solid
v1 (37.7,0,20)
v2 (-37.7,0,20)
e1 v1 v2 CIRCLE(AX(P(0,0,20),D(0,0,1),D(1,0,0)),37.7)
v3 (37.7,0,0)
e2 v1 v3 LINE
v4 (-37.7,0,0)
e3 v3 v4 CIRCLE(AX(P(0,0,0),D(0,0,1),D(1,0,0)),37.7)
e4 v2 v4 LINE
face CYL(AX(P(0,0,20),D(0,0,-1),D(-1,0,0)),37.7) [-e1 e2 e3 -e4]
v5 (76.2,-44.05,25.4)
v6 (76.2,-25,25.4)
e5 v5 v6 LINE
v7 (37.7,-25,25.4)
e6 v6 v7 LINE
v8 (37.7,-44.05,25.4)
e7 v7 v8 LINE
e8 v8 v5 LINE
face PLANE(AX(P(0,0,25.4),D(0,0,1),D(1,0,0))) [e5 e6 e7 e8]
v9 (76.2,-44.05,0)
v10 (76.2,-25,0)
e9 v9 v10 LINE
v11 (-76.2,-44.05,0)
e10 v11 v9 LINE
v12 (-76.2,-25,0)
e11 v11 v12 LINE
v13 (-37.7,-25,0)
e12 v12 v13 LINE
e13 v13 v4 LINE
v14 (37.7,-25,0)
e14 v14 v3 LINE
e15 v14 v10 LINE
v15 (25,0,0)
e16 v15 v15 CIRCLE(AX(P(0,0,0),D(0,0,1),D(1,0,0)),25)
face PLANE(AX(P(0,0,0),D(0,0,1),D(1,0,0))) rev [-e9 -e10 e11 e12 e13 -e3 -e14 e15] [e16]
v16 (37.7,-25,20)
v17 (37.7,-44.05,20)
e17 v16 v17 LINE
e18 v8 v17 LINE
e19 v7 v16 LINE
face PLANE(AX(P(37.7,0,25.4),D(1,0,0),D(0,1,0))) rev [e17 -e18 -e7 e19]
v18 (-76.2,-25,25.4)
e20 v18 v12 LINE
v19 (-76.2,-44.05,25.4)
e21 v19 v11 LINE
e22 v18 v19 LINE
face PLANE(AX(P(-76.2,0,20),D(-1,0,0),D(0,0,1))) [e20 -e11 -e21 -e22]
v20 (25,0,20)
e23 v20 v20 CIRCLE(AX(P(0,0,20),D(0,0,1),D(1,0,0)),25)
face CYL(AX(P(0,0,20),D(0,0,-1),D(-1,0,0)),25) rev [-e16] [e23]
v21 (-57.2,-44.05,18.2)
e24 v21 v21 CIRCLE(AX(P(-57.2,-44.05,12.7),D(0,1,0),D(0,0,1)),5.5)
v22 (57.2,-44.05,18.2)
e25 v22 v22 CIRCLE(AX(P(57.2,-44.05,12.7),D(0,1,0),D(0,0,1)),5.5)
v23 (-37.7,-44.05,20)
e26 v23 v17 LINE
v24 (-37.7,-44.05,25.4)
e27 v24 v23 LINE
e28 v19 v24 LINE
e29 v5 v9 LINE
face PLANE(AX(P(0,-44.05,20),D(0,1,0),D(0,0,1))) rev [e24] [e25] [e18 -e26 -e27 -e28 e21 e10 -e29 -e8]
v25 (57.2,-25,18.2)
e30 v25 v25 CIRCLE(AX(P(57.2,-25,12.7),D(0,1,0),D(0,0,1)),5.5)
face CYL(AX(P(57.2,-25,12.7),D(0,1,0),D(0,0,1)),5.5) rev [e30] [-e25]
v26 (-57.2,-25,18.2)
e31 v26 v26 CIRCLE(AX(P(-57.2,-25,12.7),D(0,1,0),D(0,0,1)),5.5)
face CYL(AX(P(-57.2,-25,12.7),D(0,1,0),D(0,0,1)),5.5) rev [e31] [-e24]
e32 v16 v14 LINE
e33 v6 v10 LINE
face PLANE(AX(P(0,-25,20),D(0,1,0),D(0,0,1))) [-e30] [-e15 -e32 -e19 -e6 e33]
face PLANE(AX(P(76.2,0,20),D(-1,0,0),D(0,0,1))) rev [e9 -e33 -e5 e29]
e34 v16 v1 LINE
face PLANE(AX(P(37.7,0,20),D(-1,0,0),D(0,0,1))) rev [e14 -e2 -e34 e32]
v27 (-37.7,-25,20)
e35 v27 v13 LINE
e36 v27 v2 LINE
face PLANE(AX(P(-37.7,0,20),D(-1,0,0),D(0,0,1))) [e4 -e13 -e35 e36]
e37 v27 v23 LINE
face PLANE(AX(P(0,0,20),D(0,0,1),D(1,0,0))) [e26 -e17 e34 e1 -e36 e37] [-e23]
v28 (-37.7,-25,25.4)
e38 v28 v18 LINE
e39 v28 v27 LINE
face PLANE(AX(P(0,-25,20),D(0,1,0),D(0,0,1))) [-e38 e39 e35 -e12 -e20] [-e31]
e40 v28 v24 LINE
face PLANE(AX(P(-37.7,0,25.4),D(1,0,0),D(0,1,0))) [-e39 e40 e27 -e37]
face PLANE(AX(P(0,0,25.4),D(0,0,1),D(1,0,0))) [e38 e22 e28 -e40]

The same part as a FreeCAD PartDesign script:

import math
import FreeCAD as App
import Part
import Sketcher
Q = App.Units.Quantity


def add_polygon(sketch, points):
    """Adds a closed chain of lines whose ends are joined by coincident constraints."""
    first, n = sketch.GeometryCount, len(points)
    for a, b in zip(points, points[1:] + points[:1]):
        sketch.addGeometry(Part.LineSegment(App.Vector(*a, 0), App.Vector(*b, 0)), False)
    for i in range(n):
        sketch.addConstraint(Sketcher.Constraint("Coincident", first + i, 2, first + (i + 1) % n, 1))

doc = App.newDocument("Part")
body = doc.addObject("PartDesign::Body", "Body")

# Sketch on XY plane
sketch1 = body.newObject("Sketcher::SketchObject", "Sketch")
sketch1.AttachmentSupport = (doc.getObject("XY_Plane"), [""])
sketch1.MapMode = "FlatFace"
sketch1.addGeometry([
    Part.LineSegment(App.Vector(-76.2, -25, 0), App.Vector(-76.2, -44.05, 0)),  # 0
    Part.LineSegment(App.Vector(-76.2, -44.05, 0), App.Vector(76.2, -44.05, 0)),  # 1
    Part.LineSegment(App.Vector(76.2, -44.05, 0), App.Vector(76.2, -25, 0)),  # 2
    Part.LineSegment(App.Vector(76.2, -25, 0), App.Vector(37.7, -25, 0)),  # 3
    Part.LineSegment(App.Vector(37.7, -25, 0), App.Vector(37.7, 0, 0)),  # 4
    Part.ArcOfCircle(Part.Circle(App.Vector(0, 0, 0), App.Vector(0, 0, 1), 37.7), math.radians(0), math.radians(180)),  # 5
    Part.LineSegment(App.Vector(-37.7, 0, 0), App.Vector(-37.7, -25, 0)),  # 6
    Part.LineSegment(App.Vector(-37.7, -25, 0), App.Vector(-76.2, -25, 0)),  # 7
    Part.Circle(App.Vector(0, 0, 0), App.Vector(0, 0, 1), 25),  # 8
], False)
sketch1.addConstraint([
    Sketcher.Constraint("Coincident", 0, 2, 1, 1),
    Sketcher.Constraint("Coincident", 1, 2, 2, 1),
    Sketcher.Constraint("Coincident", 2, 2, 3, 1),
    Sketcher.Constraint("Coincident", 3, 2, 4, 1),
    Sketcher.Constraint("Tangent", 4, 2, 5, 1),
    Sketcher.Constraint("Tangent", 5, 2, 6, 1),
    Sketcher.Constraint("Coincident", 6, 2, 7, 1),
    Sketcher.Constraint("Coincident", 7, 2, 0, 1),
    Sketcher.Constraint("Vertical", 0),
    Sketcher.Constraint("Horizontal", 1),
    Sketcher.Constraint("Vertical", 2),
    Sketcher.Constraint("Horizontal", 3),
    Sketcher.Constraint("Vertical", 4),
    Sketcher.Constraint("Vertical", 6),
    Sketcher.Constraint("Horizontal", 7),
    Sketcher.Constraint("Coincident", 5, 3, -1, 1),
    Sketcher.Constraint("Coincident", 8, 3, -1, 1),
    Sketcher.Constraint("Symmetric", 2, 2, 7, 2, -2),
    Sketcher.Constraint("Diameter", 8, Q("50 mm")),
    Sketcher.Constraint("Radius", 5, Q("37.7 mm")),
    Sketcher.Constraint("DistanceY", 4, 1, 4, 2, Q("25 mm")),
    Sketcher.Constraint("DistanceX", 1, 1, 1, 2, Q("152.4 mm")),
    Sketcher.Constraint("DistanceY", 0, 2, 0, 1, Q("19.05 mm")),
])
pad1 = body.newObject("PartDesign::Pad", "Pad")
pad1.Profile = sketch1
pad1.Length = 20

# Sketch on XY plane
sketch2 = body.newObject("Sketcher::SketchObject", "Sketch001")
sketch2.AttachmentSupport = (doc.getObject("XY_Plane"), [""])
sketch2.MapMode = "FlatFace"
sketch2.AttachmentOffset = App.Placement(App.Vector(0, 0, 20), App.Rotation())
add_polygon(sketch2, [(-76.2, -25), (-76.2, -44.05), (-37.7, -44.05), (-37.7, -25)])  # lines 0-3
add_polygon(sketch2, [(37.7, -25), (37.7, -44.05), (76.2, -44.05), (76.2, -25)])  # lines 4-7
sketch2.addConstraint([
    Sketcher.Constraint("Vertical", 0),
    Sketcher.Constraint("Horizontal", 1),
    Sketcher.Constraint("Vertical", 2),
    Sketcher.Constraint("Horizontal", 3),
    Sketcher.Constraint("Vertical", 4),
    Sketcher.Constraint("Horizontal", 5),
    Sketcher.Constraint("Vertical", 6),
    Sketcher.Constraint("Horizontal", 7),
    Sketcher.Constraint("Symmetric", 1, 2, 4, 2, -2),
    Sketcher.Constraint("Symmetric", 3, 2, 6, 2, -2),
    Sketcher.Constraint("DistanceX", 1, 1, 1, 2, Q("38.5 mm")),
    Sketcher.Constraint("DistanceY", 2, 2, -1, 1, Q("25 mm")),
    Sketcher.Constraint("DistanceY", 0, 2, 0, 1, Q("19.05 mm")),
    Sketcher.Constraint("DistanceX", 0, 2, -1, 1, Q("76.2 mm")),
])
pad2 = body.newObject("PartDesign::Pad", "Pad001")
pad2.Profile = sketch2
pad2.Length = 5.4

# Sketch on XZ plane
sketch3 = body.newObject("Sketcher::SketchObject", "Sketch002")
sketch3.AttachmentSupport = (doc.getObject("XZ_Plane"), [""])
sketch3.MapMode = "FlatFace"
sketch3.AttachmentOffset = App.Placement(App.Vector(0, 0, 25), App.Rotation())
sketch3.addGeometry([
    Part.Circle(App.Vector(-57.2, 12.7, 0), App.Vector(0, 0, 1), 5.5),
    Part.Circle(App.Vector(57.2, 12.7, 0), App.Vector(0, 0, 1), 5.5),
], False)
sketch3.addConstraint([
    Sketcher.Constraint("Equal", 0, 1),
    Sketcher.Constraint("Symmetric", 0, 3, 1, 3, -2),
    Sketcher.Constraint("Diameter", 0, Q("11 mm")),
    Sketcher.Constraint("DistanceX", 0, 3, -1, 1, Q("57.2 mm")),
    Sketcher.Constraint("DistanceY", -1, 1, 0, 3, Q("12.7 mm")),
])
doc.recompute()
hole = body.newObject("PartDesign::Hole", "Hole")
hole.Profile = sketch3
hole.ThreadType = "None"
hole.Diameter = 11
hole.DepthType = "ThroughAll"
hole.Reversed = True

doc.recompute()
